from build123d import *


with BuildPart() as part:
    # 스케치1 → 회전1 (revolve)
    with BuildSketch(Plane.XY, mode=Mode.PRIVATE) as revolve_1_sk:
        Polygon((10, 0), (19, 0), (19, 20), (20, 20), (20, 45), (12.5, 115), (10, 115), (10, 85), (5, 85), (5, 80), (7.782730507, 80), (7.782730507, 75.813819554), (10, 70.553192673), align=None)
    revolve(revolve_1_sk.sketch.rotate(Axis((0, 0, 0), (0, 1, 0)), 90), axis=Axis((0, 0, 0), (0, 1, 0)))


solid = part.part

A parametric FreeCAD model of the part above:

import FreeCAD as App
import Part
import Sketcher
from FreeCAD import Vector
Q = App.Units.Quantity

doc = App.newDocument("Part")
body = doc.addObject("PartDesign::Body", "Body")

sketch1 = body.newObject("Sketcher::SketchObject", "Sketch")
sketch1.AttachmentSupport = (doc.getObject("XY_Plane"), [""])
sketch1.MapMode = "FlatFace"
sketch1.addGeometry(Part.LineSegment(Vector(10, 0, 0), Vector(19, 0, 0)), False)
sketch1.addGeometry(Part.LineSegment(Vector(19, 0, 0), Vector(19, 20, 0)), False)
sketch1.addGeometry(Part.LineSegment(Vector(19, 20, 0), Vector(20, 20, 0)), False)
sketch1.addGeometry(Part.LineSegment(Vector(20, 20, 0), Vector(20, 45, 0)), False)
sketch1.addGeometry(Part.LineSegment(Vector(20, 45, 0), Vector(12.5, 115, 0)), False)
sketch1.addGeometry(Part.LineSegment(Vector(12.5, 115, 0), Vector(10, 115, 0)), False)
sketch1.addGeometry(Part.LineSegment(Vector(10, 115, 0), Vector(10, 85, 0)), False)
sketch1.addGeometry(Part.LineSegment(Vector(10, 85, 0), Vector(5, 85, 0)), False)
sketch1.addGeometry(Part.LineSegment(Vector(5, 85, 0), Vector(5, 80, 0)), False)
sketch1.addGeometry(Part.LineSegment(Vector(5, 80, 0), Vector(7.8, 80, 0)), False)
sketch1.addGeometry(Part.LineSegment(Vector(7.8, 80, 0), Vector(7.8, 75.8, 0)), False)
sketch1.addGeometry(Part.LineSegment(Vector(7.8, 75.8, 0), Vector(10, 70.6, 0)), False)
sketch1.addGeometry(Part.LineSegment(Vector(10, 70.6, 0), Vector(10, 0, 0)), False)
sketch1.addConstraint(Sketcher.Constraint("Coincident", 0, 2, 1, 1))
sketch1.addConstraint(Sketcher.Constraint("Coincident", 1, 2, 2, 1))
sketch1.addConstraint(Sketcher.Constraint("Coincident", 2, 2, 3, 1))
sketch1.addConstraint(Sketcher.Constraint("Coincident", 3, 2, 4, 1))
sketch1.addConstraint(Sketcher.Constraint("Coincident", 4, 2, 5, 1))
sketch1.addConstraint(Sketcher.Constraint("Coincident", 5, 2, 6, 1))
sketch1.addConstraint(Sketcher.Constraint("Coincident", 6, 2, 7, 1))
sketch1.addConstraint(Sketcher.Constraint("Coincident", 7, 2, 8, 1))
sketch1.addConstraint(Sketcher.Constraint("Coincident", 8, 2, 9, 1))
sketch1.addConstraint(Sketcher.Constraint("Coincident", 9, 2, 10, 1))
sketch1.addConstraint(Sketcher.Constraint("Coincident", 10, 2, 11, 1))
sketch1.addConstraint(Sketcher.Constraint("Coincident", 11, 2, 12, 1))
sketch1.addConstraint(Sketcher.Constraint("Coincident", 12, 2, 0, 1))
sketch1.addConstraint(Sketcher.Constraint("Horizontal", 0))
sketch1.addConstraint(Sketcher.Constraint("Vertical", 1))
sketch1.addConstraint(Sketcher.Constraint("Horizontal", 2))
sketch1.addConstraint(Sketcher.Constraint("Vertical", 3))
sketch1.addConstraint(Sketcher.Constraint("Horizontal", 5))
sketch1.addConstraint(Sketcher.Constraint("Vertical", 6))
sketch1.addConstraint(Sketcher.Constraint("Horizontal", 7))
sketch1.addConstraint(Sketcher.Constraint("Vertical", 8))
sketch1.addConstraint(Sketcher.Constraint("Horizontal", 9))
sketch1.addConstraint(Sketcher.Constraint("Vertical", 10))
sketch1.addConstraint(Sketcher.Constraint("Vertical", 12))
sketch1.addConstraint(Sketcher.Constraint("PointOnObject", 0, 2, -1))
sketch1.addConstraint(Sketcher.Constraint("Vertical", 6, 2, 11, 2))
sketch1.addConstraint(Sketcher.Constraint("Equal", 7, 8))
sketch1.addConstraint(Sketcher.Constraint("DistanceX", 0, 1, 0, 2, Q("9 mm")))
sketch1.addConstraint(Sketcher.Constraint("DistanceX", 2, 1, 2, 2, Q("1 mm")))
sketch1.addConstraint(Sketcher.Constraint("DistanceX", 7, 2, 7, 1, Q("5 mm")))
sketch1.addConstraint(Sketcher.Constraint("DistanceY", 1, 1, 1, 2, Q("20 mm")))
sketch1.addConstraint(Sketcher.Constraint("DistanceY", 3, 1, 3, 2, Q("25 mm")))
sketch1.addConstraint(Sketcher.Constraint("DistanceY", 6, 2, 6, 1, Q("30 mm")))
sketch1.addConstraint(Sketcher.Constraint("DistanceX", 5, 2, 5, 1, Q("2.5 mm")))
sketch1.addConstraint(Sketcher.Constraint("DistanceX", -1, 1, 0, 2, Q("19 mm")))
sketch1.addConstraint(Sketcher.Constraint("DistanceY", -1, 1, 4, 2, Q("115 mm")))
sketch1.addConstraint(Sketcher.Constraint("DistanceX", 9, 1, 9, 2, Q("2.782731 mm")))
sketch1.addConstraint(Sketcher.Constraint("DistanceY", 10, 2, 10, 1, Q("4.18618 mm")))
sketch1.addConstraint(Sketcher.Constraint("DistanceY", 12, 2, 12, 1, Q("70.553193 mm")))
revolution = body.newObject("PartDesign::Revolution", "Revolution")
revolution.Profile = sketch1
revolution.ReferenceAxis = (sketch1, ["V_Axis"])
revolution.Angle = 360

doc.recompute()
